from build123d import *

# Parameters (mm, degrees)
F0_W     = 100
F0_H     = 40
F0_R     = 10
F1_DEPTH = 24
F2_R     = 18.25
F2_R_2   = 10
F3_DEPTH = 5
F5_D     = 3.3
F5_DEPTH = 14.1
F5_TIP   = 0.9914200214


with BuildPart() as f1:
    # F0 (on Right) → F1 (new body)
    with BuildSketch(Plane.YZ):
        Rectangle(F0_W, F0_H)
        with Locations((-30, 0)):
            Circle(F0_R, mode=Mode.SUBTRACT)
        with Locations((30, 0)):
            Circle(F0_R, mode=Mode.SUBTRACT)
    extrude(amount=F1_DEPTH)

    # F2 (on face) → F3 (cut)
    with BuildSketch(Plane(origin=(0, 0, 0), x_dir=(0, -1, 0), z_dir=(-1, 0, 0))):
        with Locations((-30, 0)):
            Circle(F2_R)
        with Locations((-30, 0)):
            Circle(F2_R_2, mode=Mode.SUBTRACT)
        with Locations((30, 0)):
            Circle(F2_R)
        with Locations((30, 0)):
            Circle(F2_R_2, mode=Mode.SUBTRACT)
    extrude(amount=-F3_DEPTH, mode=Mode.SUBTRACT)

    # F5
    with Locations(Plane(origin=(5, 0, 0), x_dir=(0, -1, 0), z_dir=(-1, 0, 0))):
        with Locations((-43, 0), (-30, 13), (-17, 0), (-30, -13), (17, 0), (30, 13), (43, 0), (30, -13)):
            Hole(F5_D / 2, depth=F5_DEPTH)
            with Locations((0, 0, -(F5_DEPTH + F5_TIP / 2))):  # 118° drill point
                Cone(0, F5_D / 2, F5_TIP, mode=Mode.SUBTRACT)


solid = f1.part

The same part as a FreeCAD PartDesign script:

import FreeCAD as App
import Part
import Sketcher
from FreeCAD import Vector


def add_polygon(sketch, points):
    """Adds a closed chain of lines whose ends are joined by coincident constraints."""
    first, n = sketch.GeometryCount, len(points)
    for a, b in zip(points, points[1:] + points[:1]):
        sketch.addGeometry(Part.LineSegment(App.Vector(*a, 0), App.Vector(*b, 0)), False)
    for i in range(n):
        sketch.addConstraint(Sketcher.Constraint("Coincident", first + i, 2, first + (i + 1) % n, 1))

doc = App.newDocument("Part")
body = doc.addObject("PartDesign::Body", "Body")

# Sketch on YZ plane
sketch1 = body.newObject("Sketcher::SketchObject", "Sketch")
sketch1.AttachmentSupport = (doc.getObject("YZ_Plane"), [""])
sketch1.MapMode = "FlatFace"
add_polygon(sketch1, [(-50, 20), (-50, -20), (50, -20), (50, 20)])  # lines 0-3
sketch1.addGeometry(Part.Circle(Vector(-30, 0, 0), Vector(0, 0, 1), 10), False)  # 4
sketch1.addGeometry(Part.Circle(Vector(30, 0, 0), Vector(0, 0, 1), 10), False)  # 5
sketch1.addConstraint([
    Sketcher.Constraint("Vertical", 0),
    Sketcher.Constraint("Horizontal", 1),
    Sketcher.Constraint("Vertical", 2),
    Sketcher.Constraint("Horizontal", 3),
    Sketcher.Constraint("Equal", 4, 5),
    Sketcher.Constraint("Symmetric", 4, 3, 5, 3, -1, 1),
    Sketcher.Constraint("Symmetric", 0, 2, 2, 2, -1, 1),
    Sketcher.Constraint("PointOnObject", 4, 3, -1),
    Sketcher.Constraint("Diameter", 4, 20.0),
    Sketcher.Constraint("DistanceX", 1, 1, 1, 2, 100.0),
    Sketcher.Constraint("DistanceY", 0, 2, 0, 1, 40.0),
    Sketcher.Constraint("DistanceX", 4, 3, -1, 1, 30.0),
])
pad1 = body.newObject("PartDesign::Pad", "Pad")
pad1.Profile = sketch1
pad1.Length = 24

# Sketch on YZ plane
sketch2 = body.newObject("Sketcher::SketchObject", "Sketch001")
sketch2.AttachmentSupport = (doc.getObject("YZ_Plane"), [""])
sketch2.MapMode = "FlatFace"
sketch2.addGeometry([
    Part.Circle(Vector(30, 0, 0), Vector(0, 0, 1), 18.25),
    Part.Circle(Vector(30, 0, 0), Vector(0, 0, 1), 10),
    Part.Circle(Vector(-30, 0, 0), Vector(0, 0, 1), 18.25),
    Part.Circle(Vector(-30, 0, 0), Vector(0, 0, 1), 10),
], False)
sketch2.addConstraint([
    Sketcher.Constraint("Coincident", 1, 3, 0, 3),
    Sketcher.Constraint("Coincident", 3, 3, 2, 3),
    Sketcher.Constraint("Equal", 0, 2),
    Sketcher.Constraint("Equal", 1, 3),
    Sketcher.Constraint("Symmetric", 0, 3, 2, 3, -1, 1),
    Sketcher.Constraint("PointOnObject", 0, 3, -1),
    Sketcher.Constraint("Diameter", 1, 20.0),
    Sketcher.Constraint("Diameter", 0, 36.5),
    Sketcher.Constraint("DistanceX", -1, 1, 0, 3, 30.0),
])
pocket1 = body.newObject("PartDesign::Pocket", "Pocket")
pocket1.Profile = sketch2
pocket1.Length = 5
pocket1.Reversed = True

# Sketch on YZ plane
sketch3 = body.newObject("Sketcher::SketchObject", "Sketch002")
sketch3.AttachmentSupport = (doc.getObject("YZ_Plane"), [""])
sketch3.MapMode = "FlatFace"
sketch3.AttachmentOffset = App.Placement(Vector(0, 0, 5), App.Rotation())
sketch3.addGeometry([
    Part.Circle(Vector(43, 0, 0), Vector(0, 0, 1), 1.65),  # 0
    Part.Circle(Vector(30, 13, 0), Vector(0, 0, 1), 1.65),  # 1
    Part.Circle(Vector(17, 0, 0), Vector(0, 0, 1), 1.65),  # 2
    Part.Circle(Vector(30, -13, 0), Vector(0, 0, 1), 1.65),  # 3
    Part.Circle(Vector(-17, 0, 0), Vector(0, 0, 1), 1.65),  # 4
    Part.Circle(Vector(-30, 13, 0), Vector(0, 0, 1), 1.65),  # 5
    Part.Circle(Vector(-43, 0, 0), Vector(0, 0, 1), 1.65),  # 6
    Part.Circle(Vector(-30, -13, 0), Vector(0, 0, 1), 1.65),  # 7
], False)
sketch3.addConstraint([
    Sketcher.Constraint("Equal", 0, 1),
    Sketcher.Constraint("Equal", 1, 2),
    Sketcher.Constraint("Equal", 2, 3),
    Sketcher.Constraint("Equal", 3, 4),
    Sketcher.Constraint("Equal", 4, 5),
    Sketcher.Constraint("Equal", 5, 6),
    Sketcher.Constraint("Equal", 6, 7),
    Sketcher.Constraint("Symmetric", 2, 3, 4, 3, -1, 1),
    Sketcher.Constraint("Symmetric", 3, 3, 5, 3, -1, 1),
    Sketcher.Constraint("Symmetric", 0, 3, 6, 3, -1, 1),
    Sketcher.Constraint("Symmetric", 1, 3, 7, 3, -1, 1),
    Sketcher.Constraint("Symmetric", 1, 3, 5, 3, -2),
    Sketcher.Constraint("PointOnObject", 0, 3, -1),
    Sketcher.Constraint("PointOnObject", 2, 3, -1),
    Sketcher.Constraint("Diameter", 0, 3.3),
    Sketcher.Constraint("DistanceX", -1, 1, 0, 3, 43.0),
    Sketcher.Constraint("DistanceX", -1, 1, 1, 3, 30.0),
    Sketcher.Constraint("DistanceY", -1, 1, 1, 3, 13.0),
    Sketcher.Constraint("DistanceX", -1, 1, 2, 3, 17.0),
])
doc.recompute()
hole = body.newObject("PartDesign::Hole", "Hole")
hole.Profile = sketch3
hole.ThreadType = "None"
hole.Diameter = 3.3
hole.DepthType = "Dimension"
hole.Depth = 14.1
hole.DrillPoint = "Angled"
hole.DrillPointAngle = 118
hole.Reversed = True

doc.recompute()
